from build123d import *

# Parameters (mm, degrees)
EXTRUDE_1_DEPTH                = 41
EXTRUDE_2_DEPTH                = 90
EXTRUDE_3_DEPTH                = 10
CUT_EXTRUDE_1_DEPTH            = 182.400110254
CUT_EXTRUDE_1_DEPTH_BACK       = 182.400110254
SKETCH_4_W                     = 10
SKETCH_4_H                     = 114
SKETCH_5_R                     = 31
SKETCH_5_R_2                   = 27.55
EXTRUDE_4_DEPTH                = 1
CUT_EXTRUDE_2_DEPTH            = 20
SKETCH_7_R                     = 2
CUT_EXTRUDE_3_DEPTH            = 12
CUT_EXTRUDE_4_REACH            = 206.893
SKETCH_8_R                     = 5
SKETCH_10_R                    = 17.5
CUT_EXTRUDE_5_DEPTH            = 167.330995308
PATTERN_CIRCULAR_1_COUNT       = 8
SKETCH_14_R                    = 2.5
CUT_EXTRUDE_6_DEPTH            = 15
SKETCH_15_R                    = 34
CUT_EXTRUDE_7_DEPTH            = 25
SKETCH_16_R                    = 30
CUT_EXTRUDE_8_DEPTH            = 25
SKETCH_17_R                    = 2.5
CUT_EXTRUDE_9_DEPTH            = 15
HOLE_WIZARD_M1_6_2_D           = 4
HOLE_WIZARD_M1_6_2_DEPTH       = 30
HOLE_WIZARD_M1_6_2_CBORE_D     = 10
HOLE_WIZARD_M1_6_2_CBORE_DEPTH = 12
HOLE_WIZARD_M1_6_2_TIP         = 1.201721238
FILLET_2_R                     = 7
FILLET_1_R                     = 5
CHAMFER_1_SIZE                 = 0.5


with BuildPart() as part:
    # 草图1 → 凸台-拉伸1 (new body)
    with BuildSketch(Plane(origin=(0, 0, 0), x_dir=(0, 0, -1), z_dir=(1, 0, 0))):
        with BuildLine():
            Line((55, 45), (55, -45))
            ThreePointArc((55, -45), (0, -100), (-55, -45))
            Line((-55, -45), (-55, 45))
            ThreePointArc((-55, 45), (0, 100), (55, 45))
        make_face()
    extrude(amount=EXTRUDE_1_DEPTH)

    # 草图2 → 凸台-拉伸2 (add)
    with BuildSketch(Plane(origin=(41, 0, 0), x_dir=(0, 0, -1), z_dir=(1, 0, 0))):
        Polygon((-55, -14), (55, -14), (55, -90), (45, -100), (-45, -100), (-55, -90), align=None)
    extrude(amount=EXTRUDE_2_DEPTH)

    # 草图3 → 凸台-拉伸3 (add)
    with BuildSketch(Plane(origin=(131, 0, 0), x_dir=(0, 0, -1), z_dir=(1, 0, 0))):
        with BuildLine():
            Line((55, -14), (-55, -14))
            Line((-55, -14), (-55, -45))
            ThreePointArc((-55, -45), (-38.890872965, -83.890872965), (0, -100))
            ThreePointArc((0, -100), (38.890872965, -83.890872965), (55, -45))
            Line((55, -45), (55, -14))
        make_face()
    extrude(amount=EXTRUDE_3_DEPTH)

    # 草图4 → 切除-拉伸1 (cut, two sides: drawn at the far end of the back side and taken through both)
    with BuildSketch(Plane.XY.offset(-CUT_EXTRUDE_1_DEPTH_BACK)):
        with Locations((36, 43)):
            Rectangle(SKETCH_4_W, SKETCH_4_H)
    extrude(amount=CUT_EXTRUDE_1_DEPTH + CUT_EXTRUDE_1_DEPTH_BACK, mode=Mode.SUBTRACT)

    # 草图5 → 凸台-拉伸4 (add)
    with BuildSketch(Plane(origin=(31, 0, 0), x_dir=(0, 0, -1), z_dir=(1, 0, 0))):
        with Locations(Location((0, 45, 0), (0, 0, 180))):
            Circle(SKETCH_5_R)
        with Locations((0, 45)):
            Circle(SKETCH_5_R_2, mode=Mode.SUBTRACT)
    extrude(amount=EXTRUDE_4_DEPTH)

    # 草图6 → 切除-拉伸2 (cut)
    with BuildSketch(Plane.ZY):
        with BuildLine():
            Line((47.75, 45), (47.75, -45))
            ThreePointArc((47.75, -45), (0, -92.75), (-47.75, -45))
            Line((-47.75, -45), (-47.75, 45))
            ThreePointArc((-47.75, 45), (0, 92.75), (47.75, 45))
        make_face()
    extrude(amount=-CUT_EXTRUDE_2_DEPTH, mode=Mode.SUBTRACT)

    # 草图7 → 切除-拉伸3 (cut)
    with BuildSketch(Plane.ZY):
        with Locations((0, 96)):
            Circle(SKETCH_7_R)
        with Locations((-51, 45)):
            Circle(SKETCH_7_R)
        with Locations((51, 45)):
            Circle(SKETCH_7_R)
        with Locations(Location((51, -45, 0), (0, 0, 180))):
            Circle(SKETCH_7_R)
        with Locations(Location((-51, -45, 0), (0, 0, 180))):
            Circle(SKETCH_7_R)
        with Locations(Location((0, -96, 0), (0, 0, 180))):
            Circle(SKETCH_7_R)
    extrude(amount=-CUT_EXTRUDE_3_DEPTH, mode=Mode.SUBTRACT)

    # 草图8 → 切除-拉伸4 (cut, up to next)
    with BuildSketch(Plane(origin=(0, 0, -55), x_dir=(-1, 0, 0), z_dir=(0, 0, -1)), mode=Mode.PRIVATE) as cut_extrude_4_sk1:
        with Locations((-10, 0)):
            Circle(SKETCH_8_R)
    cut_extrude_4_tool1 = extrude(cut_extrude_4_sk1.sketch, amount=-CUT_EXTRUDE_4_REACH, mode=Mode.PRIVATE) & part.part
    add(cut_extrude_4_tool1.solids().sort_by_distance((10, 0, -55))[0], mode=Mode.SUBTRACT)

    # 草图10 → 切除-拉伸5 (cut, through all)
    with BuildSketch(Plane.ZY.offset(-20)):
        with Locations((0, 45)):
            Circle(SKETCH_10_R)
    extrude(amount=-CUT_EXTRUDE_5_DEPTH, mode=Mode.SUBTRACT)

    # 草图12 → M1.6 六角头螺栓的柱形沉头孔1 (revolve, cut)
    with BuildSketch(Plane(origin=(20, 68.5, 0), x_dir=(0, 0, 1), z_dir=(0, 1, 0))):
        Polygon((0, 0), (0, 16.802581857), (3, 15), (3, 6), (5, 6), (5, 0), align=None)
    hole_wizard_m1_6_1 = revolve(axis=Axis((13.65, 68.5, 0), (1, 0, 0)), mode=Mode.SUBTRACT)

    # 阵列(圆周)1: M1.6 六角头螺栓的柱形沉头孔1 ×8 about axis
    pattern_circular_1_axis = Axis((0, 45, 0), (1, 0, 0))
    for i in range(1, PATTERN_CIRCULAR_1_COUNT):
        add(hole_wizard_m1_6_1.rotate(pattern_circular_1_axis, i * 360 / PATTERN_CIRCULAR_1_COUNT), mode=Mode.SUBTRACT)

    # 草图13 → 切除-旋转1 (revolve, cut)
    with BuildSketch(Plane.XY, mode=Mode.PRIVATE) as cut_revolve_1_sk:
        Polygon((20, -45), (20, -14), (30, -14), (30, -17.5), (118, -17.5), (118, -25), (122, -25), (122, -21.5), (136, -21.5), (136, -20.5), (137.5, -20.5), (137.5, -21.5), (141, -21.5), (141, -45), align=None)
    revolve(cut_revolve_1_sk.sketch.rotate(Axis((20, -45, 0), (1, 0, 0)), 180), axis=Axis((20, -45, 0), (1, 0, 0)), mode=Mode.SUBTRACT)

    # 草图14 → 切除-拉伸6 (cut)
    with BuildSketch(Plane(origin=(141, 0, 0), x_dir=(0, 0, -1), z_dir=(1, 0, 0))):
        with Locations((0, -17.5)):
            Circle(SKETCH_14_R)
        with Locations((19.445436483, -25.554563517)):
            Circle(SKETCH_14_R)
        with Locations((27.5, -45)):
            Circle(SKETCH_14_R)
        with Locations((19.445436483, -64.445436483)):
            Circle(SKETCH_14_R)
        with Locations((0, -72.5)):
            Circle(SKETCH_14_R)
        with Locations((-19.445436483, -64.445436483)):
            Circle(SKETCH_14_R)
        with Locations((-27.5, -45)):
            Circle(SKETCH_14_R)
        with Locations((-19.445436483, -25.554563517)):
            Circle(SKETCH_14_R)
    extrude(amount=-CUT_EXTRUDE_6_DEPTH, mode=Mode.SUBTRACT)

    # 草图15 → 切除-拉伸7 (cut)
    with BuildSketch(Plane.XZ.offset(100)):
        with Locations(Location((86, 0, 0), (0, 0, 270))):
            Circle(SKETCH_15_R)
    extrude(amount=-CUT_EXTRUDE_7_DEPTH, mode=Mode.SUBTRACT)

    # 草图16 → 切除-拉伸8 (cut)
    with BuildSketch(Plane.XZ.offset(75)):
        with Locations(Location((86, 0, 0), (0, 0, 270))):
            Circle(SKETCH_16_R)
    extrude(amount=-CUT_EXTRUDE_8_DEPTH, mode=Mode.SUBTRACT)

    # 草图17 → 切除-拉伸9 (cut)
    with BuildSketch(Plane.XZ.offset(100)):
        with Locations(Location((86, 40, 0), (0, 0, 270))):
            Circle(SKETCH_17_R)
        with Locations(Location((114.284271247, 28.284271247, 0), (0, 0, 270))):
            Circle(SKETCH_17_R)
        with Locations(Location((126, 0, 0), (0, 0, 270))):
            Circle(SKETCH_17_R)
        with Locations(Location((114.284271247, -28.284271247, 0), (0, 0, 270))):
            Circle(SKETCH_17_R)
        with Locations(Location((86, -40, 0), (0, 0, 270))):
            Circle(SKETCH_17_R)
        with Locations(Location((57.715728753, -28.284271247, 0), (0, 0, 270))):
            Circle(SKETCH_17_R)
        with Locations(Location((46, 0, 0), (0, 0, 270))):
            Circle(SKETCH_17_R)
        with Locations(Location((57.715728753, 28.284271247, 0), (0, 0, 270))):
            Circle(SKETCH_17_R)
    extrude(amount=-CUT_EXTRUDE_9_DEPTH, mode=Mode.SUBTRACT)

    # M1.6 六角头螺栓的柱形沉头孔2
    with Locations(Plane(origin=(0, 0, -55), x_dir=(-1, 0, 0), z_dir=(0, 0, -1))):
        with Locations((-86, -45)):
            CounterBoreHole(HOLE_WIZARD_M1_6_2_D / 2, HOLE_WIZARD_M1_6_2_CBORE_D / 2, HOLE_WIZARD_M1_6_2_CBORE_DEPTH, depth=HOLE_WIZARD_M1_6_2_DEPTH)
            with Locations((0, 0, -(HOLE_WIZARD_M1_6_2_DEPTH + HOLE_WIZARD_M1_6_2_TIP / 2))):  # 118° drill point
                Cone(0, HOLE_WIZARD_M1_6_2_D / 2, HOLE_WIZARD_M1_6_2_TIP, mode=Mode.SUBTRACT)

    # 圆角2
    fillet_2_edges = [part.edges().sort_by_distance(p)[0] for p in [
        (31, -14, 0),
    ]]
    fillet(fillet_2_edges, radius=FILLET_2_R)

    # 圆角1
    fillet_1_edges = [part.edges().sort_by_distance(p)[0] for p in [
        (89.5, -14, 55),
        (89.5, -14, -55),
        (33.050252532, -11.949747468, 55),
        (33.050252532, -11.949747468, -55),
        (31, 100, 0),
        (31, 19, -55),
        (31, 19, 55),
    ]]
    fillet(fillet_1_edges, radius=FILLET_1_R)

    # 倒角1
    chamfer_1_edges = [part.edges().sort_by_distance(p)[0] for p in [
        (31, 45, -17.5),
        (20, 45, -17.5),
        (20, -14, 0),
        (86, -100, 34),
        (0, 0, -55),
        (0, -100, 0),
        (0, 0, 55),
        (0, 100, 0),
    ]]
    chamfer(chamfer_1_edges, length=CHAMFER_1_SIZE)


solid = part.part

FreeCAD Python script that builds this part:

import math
import FreeCAD as App
import Part
import Sketcher
from FreeCAD import Vector
Q = App.Units.Quantity


def edges_at(feature, points):
    """Names of the edges that pass closest to the given points."""
    edges = feature.Shape.Edges
    near = lambda p: min(range(len(edges)), key=lambda i: edges[i].distToShape(Part.Vertex(*p))[0])
    return sorted({f"Edge{near(p) + 1}" for p in points})


def add_polygon(sketch, points):
    """Adds a closed chain of lines whose ends are joined by coincident constraints."""
    first, n = sketch.GeometryCount, len(points)
    for a, b in zip(points, points[1:] + points[:1]):
        sketch.addGeometry(Part.LineSegment(App.Vector(*a, 0), App.Vector(*b, 0)), False)
    for i in range(n):
        sketch.addConstraint(Sketcher.Constraint("Coincident", first + i, 2, first + (i + 1) % n, 1))

doc = App.newDocument("Part")
body = doc.addObject("PartDesign::Body", "Body")

# Sketch on YZ plane
sketch1 = body.newObject("Sketcher::SketchObject", "Sketch")
sketch1.AttachmentSupport = (doc.getObject("YZ_Plane"), [""])
sketch1.MapMode = "FlatFace"
sketch1.addGeometry(Part.LineSegment(Vector(-45, -55, 0), Vector(45, -55, 0)), False)
sketch1.addGeometry(Part.ArcOfCircle(Part.Circle(Vector(45, 0, 0), Vector(0, 0, 1), 55), math.radians(-90), math.radians(90)), False)
sketch1.addGeometry(Part.LineSegment(Vector(45, 55, 0), Vector(-45, 55, 0)), False)
sketch1.addGeometry(Part.ArcOfCircle(Part.Circle(Vector(-45, 0, 0), Vector(0, 0, 1), 55), math.radians(90), math.radians(270)), False)
sketch1.addConstraint(Sketcher.Constraint("Tangent", 0, 2, 1, 1))
sketch1.addConstraint(Sketcher.Constraint("Tangent", 1, 2, 2, 1))
sketch1.addConstraint(Sketcher.Constraint("Tangent", 2, 2, 3, 1))
sketch1.addConstraint(Sketcher.Constraint("Tangent", 3, 2, 0, 1))
sketch1.addConstraint(Sketcher.Constraint("Horizontal", 0))
sketch1.addConstraint(Sketcher.Constraint("Horizontal", 2))
sketch1.addConstraint(Sketcher.Constraint("Symmetric", 1, 3, 3, 3, -1, 1))
sketch1.addConstraint(Sketcher.Constraint("Radius", 1, Q("55 mm")))
sketch1.addConstraint(Sketcher.Constraint("DistanceX", 0, 1, 0, 2, Q("90 mm")))
pad1 = body.newObject("PartDesign::Pad", "Pad")
pad1.Profile = sketch1
pad1.Length = 41

# Sketch on YZ plane
sketch2 = body.newObject("Sketcher::SketchObject", "Sketch001")
sketch2.AttachmentSupport = (doc.getObject("YZ_Plane"), [""])
sketch2.MapMode = "FlatFace"
sketch2.AttachmentOffset = App.Placement(Vector(0, 0, 41), App.Rotation())
add_polygon(sketch2, [(-14, -55), (-14, 55), (-90, 55), (-100, 45), (-100, -45), (-90, -55)])  # lines 0-5
sketch2.addConstraint(Sketcher.Constraint("Vertical", 0))
sketch2.addConstraint(Sketcher.Constraint("Horizontal", 1))
sketch2.addConstraint(Sketcher.Constraint("Vertical", 3))
sketch2.addConstraint(Sketcher.Constraint("Horizontal", 5))
sketch2.addConstraint(Sketcher.Constraint("Symmetric", 1, 2, 4, 2, -1))
sketch2.addConstraint(Sketcher.Constraint("Perpendicular", 2, 4))
sketch2.addConstraint(Sketcher.Constraint("Equal", 2, 4))
sketch2.addConstraint(Sketcher.Constraint("DistanceX", 1, 2, 1, 1, Q("76 mm")))
sketch2.addConstraint(Sketcher.Constraint("DistanceY", 0, 1, 0, 2, Q("110 mm")))
sketch2.addConstraint(Sketcher.Constraint("DistanceY", 3, 2, 3, 1, Q("90 mm")))
sketch2.addConstraint(Sketcher.Constraint("DistanceX", 0, 2, -1, 1, Q("14 mm")))
pad2 = body.newObject("PartDesign::Pad", "Pad001")
pad2.Profile = sketch2
pad2.Length = 90

# Sketch on YZ plane
sketch3 = body.newObject("Sketcher::SketchObject", "Sketch002")
sketch3.AttachmentSupport = (doc.getObject("YZ_Plane"), [""])
sketch3.MapMode = "FlatFace"
sketch3.AttachmentOffset = App.Placement(Vector(0, 0, 131), App.Rotation())
sketch3.addGeometry(Part.LineSegment(Vector(-14, -55, 0), Vector(-14, 55, 0)), False)
sketch3.addGeometry(Part.LineSegment(Vector(-14, 55, 0), Vector(-45, 55, 0)), False)
sketch3.addGeometry(Part.ArcOfCircle(Part.Circle(Vector(-45, 0, 0), Vector(0, 0, 1), 55), math.radians(90), math.radians(180)), False)
sketch3.addGeometry(Part.ArcOfCircle(Part.Circle(Vector(-45, 0, 0), Vector(0, 0, 1), 55), math.radians(-180), math.radians(-90)), False)
sketch3.addGeometry(Part.LineSegment(Vector(-45, -55, 0), Vector(-14, -55, 0)), False)
sketch3.addConstraint(Sketcher.Constraint("Coincident", 0, 2, 1, 1))
sketch3.addConstraint(Sketcher.Constraint("Tangent", 1, 2, 2, 1))
sketch3.addConstraint(Sketcher.Constraint("Tangent", 2, 2, 3, 1))
sketch3.addConstraint(Sketcher.Constraint("Tangent", 3, 2, 4, 1))
sketch3.addConstraint(Sketcher.Constraint("Coincident", 4, 2, 0, 1))
sketch3.addConstraint(Sketcher.Constraint("Vertical", 0))
sketch3.addConstraint(Sketcher.Constraint("Horizontal", 1))
sketch3.addConstraint(Sketcher.Constraint("Horizontal", 4))
sketch3.addConstraint(Sketcher.Constraint("Equal", 2, 3))
sketch3.addConstraint(Sketcher.Constraint("PointOnObject", 2, 3, -1))
sketch3.addConstraint(Sketcher.Constraint("PointOnObject", 2, 2, -1))
sketch3.addConstraint(Sketcher.Constraint("Radius", 2, Q("55 mm")))
sketch3.addConstraint(Sketcher.Constraint("DistanceX", 1, 2, 1, 1, Q("31 mm")))
sketch3.addConstraint(Sketcher.Constraint("DistanceX", 2, 3, -1, 1, Q("45 mm")))
pad3 = body.newObject("PartDesign::Pad", "Pad002")
pad3.Profile = sketch3
pad3.Length = 10

# Sketch on XY plane
sketch4 = body.newObject("Sketcher::SketchObject", "Sketch003")
sketch4.AttachmentSupport = (doc.getObject("XY_Plane"), [""])
sketch4.MapMode = "FlatFace"
add_polygon(sketch4, [(31, 100), (31, -14), (41, -14), (41, 100)])  # lines 0-3
sketch4.addConstraint(Sketcher.Constraint("Vertical", 0))
sketch4.addConstraint(Sketcher.Constraint("Horizontal", 1))
sketch4.addConstraint(Sketcher.Constraint("Vertical", 2))
sketch4.addConstraint(Sketcher.Constraint("Horizontal", 3))
sketch4.addConstraint(Sketcher.Constraint("DistanceX", 1, 1, 1, 2, Q("10 mm")))
sketch4.addConstraint(Sketcher.Constraint("DistanceY", 0, 2, 0, 1, Q("114 mm")))
sketch4.addConstraint(Sketcher.Constraint("DistanceX", -1, 1, 0, 2, Q("31 mm")))
sketch4.addConstraint(Sketcher.Constraint("DistanceY", 0, 2, -1, 1, Q("14 mm")))
pocket1 = body.newObject("PartDesign::Pocket", "Pocket")
pocket1.Profile = sketch4
pocket1.Type = "ThroughAll"
pocket1.Midplane = True

# Sketch on YZ plane
sketch5 = body.newObject("Sketcher::SketchObject", "Sketch004")
sketch5.AttachmentSupport = (doc.getObject("YZ_Plane"), [""])
sketch5.MapMode = "FlatFace"
sketch5.AttachmentOffset = App.Placement(Vector(0, 0, 31), App.Rotation())
sketch5.addGeometry(Part.Circle(Vector(45, 0, 0), Vector(0, 0, 1), 31), False)
sketch5.addGeometry(Part.Circle(Vector(45, 0, 0), Vector(0, 0, 1), 28), False)
sketch5.addConstraint(Sketcher.Constraint("Coincident", 1, 3, 0, 3))
sketch5.addConstraint(Sketcher.Constraint("PointOnObject", 0, 3, -1))
sketch5.addConstraint(Sketcher.Constraint("Diameter", 0, Q("62 mm")))
sketch5.addConstraint(Sketcher.Constraint("Diameter", 1, Q("55.1 mm")))
sketch5.addConstraint(Sketcher.Constraint("DistanceX", -1, 1, 0, 3, Q("45 mm")))
pad4 = body.newObject("PartDesign::Pad", "Pad003")
pad4.Profile = sketch5
pad4.Length = 1

# Sketch on YZ plane
sketch6 = body.newObject("Sketcher::SketchObject", "Sketch005")
sketch6.AttachmentSupport = (doc.getObject("YZ_Plane"), [""])
sketch6.MapMode = "FlatFace"
sketch6.addGeometry(Part.LineSegment(Vector(-45, 48, 0), Vector(45, 48, 0)), False)
sketch6.addGeometry(Part.ArcOfCircle(Part.Circle(Vector(45, 0, 0), Vector(0, 0, 1), 48), math.radians(-90), math.radians(90)), False)
sketch6.addGeometry(Part.LineSegment(Vector(45, -48, 0), Vector(-45, -48, 0)), False)
sketch6.addGeometry(Part.ArcOfCircle(Part.Circle(Vector(-45, 0, 0), Vector(0, 0, 1), 48), math.radians(90), math.radians(270)), False)
sketch6.addConstraint(Sketcher.Constraint("Tangent", 0, 2, 1, 2))
sketch6.addConstraint(Sketcher.Constraint("Tangent", 1, 1, 2, 1))
sketch6.addConstraint(Sketcher.Constraint("Tangent", 2, 2, 3, 2))
sketch6.addConstraint(Sketcher.Constraint("Tangent", 3, 1, 0, 1))
sketch6.addConstraint(Sketcher.Constraint("Horizontal", 0))
sketch6.addConstraint(Sketcher.Constraint("Horizontal", 2))
sketch6.addConstraint(Sketcher.Constraint("Symmetric", 1, 3, 3, 3, -1, 1))
sketch6.addConstraint(Sketcher.Constraint("DistanceX", 0, 1, 0, 2, Q("90 mm")))
sketch6.addConstraint(Sketcher.Constraint("Radius", 1, Q("47.75 mm")))
pocket2 = body.newObject("PartDesign::Pocket", "Pocket001")
pocket2.Profile = sketch6
pocket2.Length = 20
pocket2.Reversed = True

# Sketch on YZ plane
sketch7 = body.newObject("Sketcher::SketchObject", "Sketch006")
sketch7.AttachmentSupport = (doc.getObject("YZ_Plane"), [""])
sketch7.MapMode = "FlatFace"
sketch7.addGeometry(Part.Circle(Vector(96, 0, 0), Vector(0, 0, 1), 2), False)
sketch7.addGeometry(Part.Circle(Vector(45, -51, 0), Vector(0, 0, 1), 2), False)
sketch7.addGeometry(Part.Circle(Vector(45, 51, 0), Vector(0, 0, 1), 2), False)
sketch7.addGeometry(Part.Circle(Vector(-45, 51, 0), Vector(0, 0, 1), 2), False)
sketch7.addGeometry(Part.Circle(Vector(-45, -51, 0), Vector(0, 0, 1), 2), False)
sketch7.addGeometry(Part.Circle(Vector(-96, 0, 0), Vector(0, 0, 1), 2), False)
sketch7.addConstraint(Sketcher.Constraint("Equal", 0, 1))
sketch7.addConstraint(Sketcher.Constraint("Equal", 1, 2))
sketch7.addConstraint(Sketcher.Constraint("Equal", 2, 3))
sketch7.addConstraint(Sketcher.Constraint("Equal", 3, 4))
sketch7.addConstraint(Sketcher.Constraint("Equal", 4, 5))
sketch7.addConstraint(Sketcher.Constraint("Symmetric", 1, 3, 3, 3, -1, 1))
sketch7.addConstraint(Sketcher.Constraint("Symmetric", 2, 3, 4, 3, -1, 1))
sketch7.addConstraint(Sketcher.Constraint("Symmetric", 0, 3, 5, 3, -1, 1))
sketch7.addConstraint(Sketcher.Constraint("Symmetric", 2, 3, 3, 3, -2))
sketch7.addConstraint(Sketcher.Constraint("PointOnObject", 0, 3, -1))
sketch7.addConstraint(Sketcher.Constraint("Diameter", 0, Q("4 mm")))
sketch7.addConstraint(Sketcher.Constraint("DistanceX", -1, 1, 0, 3, Q("96 mm")))
sketch7.addConstraint(Sketcher.Constraint("DistanceX", -1, 1, 1, 3, Q("45 mm")))
sketch7.addConstraint(Sketcher.Constraint("DistanceY", 1, 3, -1, 1, Q("51 mm")))
pocket3 = body.newObject("PartDesign::Pocket", "Pocket002")
pocket3.Profile = sketch7
pocket3.Length = 12
pocket3.Reversed = True

# Sketch on XY plane
sketch8 = body.newObject("Sketcher::SketchObject", "Sketch007")
sketch8.AttachmentSupport = (doc.getObject("XY_Plane"), [""])
sketch8.MapMode = "FlatFace"
sketch8.AttachmentOffset = App.Placement(Vector(0, 0, -55), App.Rotation())
sketch8.addGeometry(Part.Circle(Vector(10, 0, 0), Vector(0, 0, 1), 5), False)
sketch8.addConstraint(Sketcher.Constraint("PointOnObject", 0, 3, -1))
sketch8.addConstraint(Sketcher.Constraint("Diameter", 0, Q("10 mm")))
sketch8.addConstraint(Sketcher.Constraint("DistanceX", -1, 1, 0, 3, Q("10 mm")))
pocket4 = body.newObject("PartDesign::Pocket", "Pocket003")
pocket4.Profile = sketch8
pocket4.Type = "UpToFirst"
pocket4.Reversed = True

# Sketch on YZ plane
sketch9 = body.newObject("Sketcher::SketchObject", "Sketch008")
sketch9.AttachmentSupport = (doc.getObject("YZ_Plane"), [""])
sketch9.MapMode = "FlatFace"
sketch9.AttachmentOffset = App.Placement(Vector(0, 0, 20), App.Rotation())
sketch9.addGeometry(Part.Circle(Vector(45, 0, 0), Vector(0, 0, 1), 18), False)
sketch9.addConstraint(Sketcher.Constraint("PointOnObject", 0, 3, -1))
sketch9.addConstraint(Sketcher.Constraint("Diameter", 0, Q("35 mm")))
sketch9.addConstraint(Sketcher.Constraint("DistanceX", -1, 1, 0, 3, Q("45 mm")))
pocket5 = body.newObject("PartDesign::Pocket", "Pocket004")
pocket5.Profile = sketch9
pocket5.Type = "ThroughAll"
pocket5.Reversed = True

# Sketch on XZ plane
sketch10 = body.newObject("Sketcher::SketchObject", "Sketch009")
sketch10.AttachmentSupport = (doc.getObject("XZ_Plane"), [""])
sketch10.MapMode = "FlatFace"
sketch10.AttachmentOffset = App.Placement(Vector(0, 0, -68.5), App.Rotation())
add_polygon(sketch10, [(36.8, 0), (20, 0), (20, 5), (26, 5), (26, 3), (35, 3)])  # lines 0-5
sketch10.addConstraint(Sketcher.Constraint("Horizontal", 0))
sketch10.addConstraint(Sketcher.Constraint("Vertical", 1))
sketch10.addConstraint(Sketcher.Constraint("Horizontal", 2))
sketch10.addConstraint(Sketcher.Constraint("Vertical", 3))
sketch10.addConstraint(Sketcher.Constraint("Horizontal", 4))
sketch10.addConstraint(Sketcher.Constraint("PointOnObject", 0, 2, -1))
sketch10.addConstraint(Sketcher.Constraint("DistanceX", 2, 1, 2, 2, Q("6 mm")))
sketch10.addConstraint(Sketcher.Constraint("DistanceX", 4, 1, 4, 2, Q("9 mm")))
sketch10.addConstraint(Sketcher.Constraint("DistanceY", 1, 1, 1, 2, Q("5 mm")))
sketch10.addConstraint(Sketcher.Constraint("DistanceY", 3, 2, 3, 1, Q("2 mm")))
sketch10.addConstraint(Sketcher.Constraint("Angle", 5, Q("-59 deg")))
sketch10.addConstraint(Sketcher.Constraint("DistanceX", -1, 1, 0, 2, Q("20 mm")))
groove = body.newObject("PartDesign::Groove", "Groove")
groove.Profile = sketch10
groove.ReferenceAxis = (sketch10, ["H_Axis"])
groove.Angle = 360
doc.recompute()

datumline = body.newObject("PartDesign::Line", "DatumLine")
datumline.Placement = App.Placement(Vector(0, 45, 0), App.Rotation(Vector(0, 0, 1), Vector(1, 0, 0)))
polarpattern = body.newObject("PartDesign::PolarPattern", "PolarPattern")
polarpattern.Originals = [groove]
polarpattern.Axis = (datumline, [""])
polarpattern.Angle = 360
polarpattern.Occurrences = 8
body.Tip = polarpattern

# Sketch on XY plane
sketch11 = body.newObject("Sketcher::SketchObject", "Sketch010")
sketch11.AttachmentSupport = (doc.getObject("XY_Plane"), [""])
sketch11.MapMode = "FlatFace"
add_polygon(sketch11, [(20, -14), (20, -45), (141, -45), (141, -21.5), (137.5, -21.5), (137.5, -20.5), (136, -20.5), (136, -21.5), (122, -21.5), (122, -25), (118, -25), (118, -17.5), (30, -17.5), (30, -14)])  # lines 0-13
sketch11.addGeometry(Part.LineSegment(Vector(20, -45, 0), Vector(141, -45, 0)), True)  # axis
sketch11.addConstraint(Sketcher.Constraint("Vertical", 0))
sketch11.addConstraint(Sketcher.Constraint("Horizontal", 1))
sketch11.addConstraint(Sketcher.Constraint("Vertical", 2))
sketch11.addConstraint(Sketcher.Constraint("Horizontal", 3))
sketch11.addConstraint(Sketcher.Constraint("Vertical", 4))
sketch11.addConstraint(Sketcher.Constraint("Horizontal", 5))
sketch11.addConstraint(Sketcher.Constraint("Vertical", 6))
sketch11.addConstraint(Sketcher.Constraint("Horizontal", 7))
sketch11.addConstraint(Sketcher.Constraint("Vertical", 8))
sketch11.addConstraint(Sketcher.Constraint("Horizontal", 9))
sketch11.addConstraint(Sketcher.Constraint("Vertical", 10))
sketch11.addConstraint(Sketcher.Constraint("Horizontal", 11))
sketch11.addConstraint(Sketcher.Constraint("Vertical", 12))
sketch11.addConstraint(Sketcher.Constraint("Horizontal", 13))
sketch11.addConstraint(Sketcher.Constraint("Horizontal", 14))
sketch11.addConstraint(Sketcher.Constraint("Coincident", 14, 1, 0, 2))
sketch11.addConstraint(Sketcher.Constraint("Horizontal", 3, 2, 6, 2))
sketch11.addConstraint(Sketcher.Constraint("Vertical", 2, 2, 14, 2))
sketch11.addConstraint(Sketcher.Constraint("Equal", 3, 8))
sketch11.addConstraint(Sketcher.Constraint("Equal", 8, 12))
sketch11.addConstraint(Sketcher.Constraint("DistanceX", 1, 1, 1, 2, Q("121 mm")))
sketch11.addConstraint(Sketcher.Constraint("DistanceX", 7, 2, 7, 1, Q("14 mm")))
sketch11.addConstraint(Sketcher.Constraint("DistanceX", 9, 2, 9, 1, Q("4 mm")))
sketch11.addConstraint(Sketcher.Constraint("DistanceX", 11, 2, 11, 1, Q("88 mm")))
sketch11.addConstraint(Sketcher.Constraint("DistanceX", 13, 2, 13, 1, Q("10 mm")))
sketch11.addConstraint(Sketcher.Constraint("DistanceY", 0, 2, 0, 1, Q("31 mm")))
sketch11.addConstraint(Sketcher.Constraint("DistanceY", 4, 1, 4, 2, Q("1 mm")))
sketch11.addConstraint(Sketcher.Constraint("DistanceX", 3, 2, 3, 1, Q("3.5 mm")))
sketch11.addConstraint(Sketcher.Constraint("DistanceY", 2, 1, 2, 2, Q("23.5 mm")))
sketch11.addConstraint(Sketcher.Constraint("DistanceX", -1, 1, 0, 2, Q("20 mm")))
sketch11.addConstraint(Sketcher.Constraint("DistanceY", 0, 2, -1, 1, Q("45 mm")))
groove2 = body.newObject("PartDesign::Groove", "Groove001")
groove2.Profile = sketch11
groove2.ReferenceAxis = (sketch11, ["Axis0"])
groove2.Angle = 360

# Sketch on YZ plane
sketch12 = body.newObject("Sketcher::SketchObject", "Sketch011")
sketch12.AttachmentSupport = (doc.getObject("YZ_Plane"), [""])
sketch12.MapMode = "FlatFace"
sketch12.AttachmentOffset = App.Placement(Vector(0, 0, 141), App.Rotation())
sketch12.addGeometry(Part.Circle(Vector(-17.5, 0, 0), Vector(0, 0, 1), 2.5), False)
sketch12.addGeometry(Part.Circle(Vector(-25.6, -19.4, 0), Vector(0, 0, 1), 2.5), False)
sketch12.addGeometry(Part.Circle(Vector(-45, -27.5, 0), Vector(0, 0, 1), 2.5), False)
sketch12.addGeometry(Part.Circle(Vector(-64.4, -19.4, 0), Vector(0, 0, 1), 2.5), False)
sketch12.addGeometry(Part.Circle(Vector(-72.5, 0, 0), Vector(0, 0, 1), 2.5), False)
sketch12.addGeometry(Part.Circle(Vector(-64.4, 19.4, 0), Vector(0, 0, 1), 2.5), False)
sketch12.addGeometry(Part.Circle(Vector(-45, 27.5, 0), Vector(0, 0, 1), 2.5), False)
sketch12.addGeometry(Part.Circle(Vector(-25.6, 19.4, 0), Vector(0, 0, 1), 2.5), False)
sketch12.addConstraint(Sketcher.Constraint("Equal", 0, 1))
sketch12.addConstraint(Sketcher.Constraint("Equal", 1, 2))
sketch12.addConstraint(Sketcher.Constraint("Equal", 2, 3))
sketch12.addConstraint(Sketcher.Constraint("Equal", 3, 4))
sketch12.addConstraint(Sketcher.Constraint("Equal", 4, 5))
sketch12.addConstraint(Sketcher.Constraint("Equal", 5, 6))
sketch12.addConstraint(Sketcher.Constraint("Equal", 6, 7))
sketch12.addConstraint(Sketcher.Constraint("Symmetric", 3, 3, 5, 3, -1))
sketch12.addConstraint(Sketcher.Constraint("Symmetric", 2, 3, 6, 3, -1))
sketch12.addConstraint(Sketcher.Constraint("Symmetric", 1, 3, 7, 3, -1))
sketch12.addConstraint(Sketcher.Constraint("PointOnObject", 0, 3, -1))
sketch12.addConstraint(Sketcher.Constraint("PointOnObject", 4, 3, -1))
sketch12.addConstraint(Sketcher.Constraint("Horizontal", 1, 3, 3, 3))
sketch12.addConstraint(Sketcher.Constraint("Diameter", 0, Q("5 mm")))
sketch12.addConstraint(Sketcher.Constraint("DistanceX", 2, 3, -1, 1, Q("45 mm")))
sketch12.addConstraint(Sketcher.Constraint("DistanceX", 4, 3, 0, 3, Q("55 mm")))
sketch12.addConstraint(Sketcher.Constraint("DistanceX", 0, 3, -1, 1, Q("17.5 mm")))
sketch12.addConstraint(Sketcher.Constraint("DistanceY", 2, 3, -1, 1, Q("27.5 mm")))
sketch12.addConstraint(Sketcher.Constraint("DistanceX", 1, 3, -1, 1, Q("25.554564 mm")))
sketch12.addConstraint(Sketcher.Constraint("DistanceY", 1, 3, -1, 1, Q("19.445436 mm")))
sketch12.addConstraint(Sketcher.Constraint("DistanceX", 3, 3, -1, 1, Q("64.445436 mm")))
pocket6 = body.newObject("PartDesign::Pocket", "Pocket005")
pocket6.Profile = sketch12
pocket6.Length = 15

# Sketch on XZ plane
sketch13 = body.newObject("Sketcher::SketchObject", "Sketch012")
sketch13.AttachmentSupport = (doc.getObject("XZ_Plane"), [""])
sketch13.MapMode = "FlatFace"
sketch13.AttachmentOffset = App.Placement(Vector(0, 0, 100), App.Rotation())
sketch13.addGeometry(Part.Circle(Vector(86, 0, 0), Vector(0, 0, 1), 34), False)
sketch13.addConstraint(Sketcher.Constraint("PointOnObject", 0, 3, -1))
sketch13.addConstraint(Sketcher.Constraint("Diameter", 0, Q("68 mm")))
sketch13.addConstraint(Sketcher.Constraint("DistanceX", -1, 1, 0, 3, Q("86 mm")))
pocket7 = body.newObject("PartDesign::Pocket", "Pocket006")
pocket7.Profile = sketch13
pocket7.Length = 25

# Sketch on XZ plane
sketch14 = body.newObject("Sketcher::SketchObject", "Sketch013")
sketch14.AttachmentSupport = (doc.getObject("XZ_Plane"), [""])
sketch14.MapMode = "FlatFace"
sketch14.AttachmentOffset = App.Placement(Vector(0, 0, 75), App.Rotation())
sketch14.addGeometry(Part.Circle(Vector(86, 0, 0), Vector(0, 0, 1), 30), False)
sketch14.addConstraint(Sketcher.Constraint("PointOnObject", 0, 3, -1))
sketch14.addConstraint(Sketcher.Constraint("Diameter", 0, Q("60 mm")))
sketch14.addConstraint(Sketcher.Constraint("DistanceX", -1, 1, 0, 3, Q("86 mm")))
pocket8 = body.newObject("PartDesign::Pocket", "Pocket007")
pocket8.Profile = sketch14
pocket8.Length = 25

# Sketch on XZ plane
sketch15 = body.newObject("Sketcher::SketchObject", "Sketch014")
sketch15.AttachmentSupport = (doc.getObject("XZ_Plane"), [""])
sketch15.MapMode = "FlatFace"
sketch15.AttachmentOffset = App.Placement(Vector(0, 0, 100), App.Rotation())
sketch15.addGeometry(Part.Circle(Vector(86, 40, 0), Vector(0, 0, 1), 2.5), False)
sketch15.addGeometry(Part.Circle(Vector(114.3, 28.3, 0), Vector(0, 0, 1), 2.5), False)
sketch15.addGeometry(Part.Circle(Vector(126, 0, 0), Vector(0, 0, 1), 2.5), False)
sketch15.addGeometry(Part.Circle(Vector(114.3, -28.3, 0), Vector(0, 0, 1), 2.5), False)
sketch15.addGeometry(Part.Circle(Vector(86, -40, 0), Vector(0, 0, 1), 2.5), False)
sketch15.addGeometry(Part.Circle(Vector(57.7, -28.3, 0), Vector(0, 0, 1), 2.5), False)
sketch15.addGeometry(Part.Circle(Vector(46, 0, 0), Vector(0, 0, 1), 2.5), False)
sketch15.addGeometry(Part.Circle(Vector(57.7, 28.3, 0), Vector(0, 0, 1), 2.5), False)
sketch15.addConstraint(Sketcher.Constraint("Equal", 0, 1))
sketch15.addConstraint(Sketcher.Constraint("Equal", 1, 2))
sketch15.addConstraint(Sketcher.Constraint("Equal", 2, 3))
sketch15.addConstraint(Sketcher.Constraint("Equal", 3, 4))
sketch15.addConstraint(Sketcher.Constraint("Equal", 4, 5))
sketch15.addConstraint(Sketcher.Constraint("Equal", 5, 6))
sketch15.addConstraint(Sketcher.Constraint("Equal", 6, 7))
sketch15.addConstraint(Sketcher.Constraint("Symmetric", 1, 3, 3, 3, -1))
sketch15.addConstraint(Sketcher.Constraint("Symmetric", 0, 3, 4, 3, -1))
sketch15.addConstraint(Sketcher.Constraint("Symmetric", 5, 3, 7, 3, -1))
sketch15.addConstraint(Sketcher.Constraint("PointOnObject", 2, 3, -1))
sketch15.addConstraint(Sketcher.Constraint("PointOnObject", 6, 3, -1))
sketch15.addConstraint(Sketcher.Constraint("Horizontal", 3, 3, 5, 3))
sketch15.addConstraint(Sketcher.Constraint("Diameter", 0, Q("5 mm")))
sketch15.addConstraint(Sketcher.Constraint("DistanceX", -1, 1, 0, 3, Q("86 mm")))
sketch15.addConstraint(Sketcher.Constraint("DistanceY", -1, 1, 0, 3, Q("40 mm")))
sketch15.addConstraint(Sketcher.Constraint("DistanceX", -1, 1, 2, 3, Q("126 mm")))
sketch15.addConstraint(Sketcher.Constraint("DistanceX", -1, 1, 6, 3, Q("46 mm")))
sketch15.addConstraint(Sketcher.Constraint("DistanceX", -1, 1, 1, 3, Q("114.284271 mm")))
sketch15.addConstraint(Sketcher.Constraint("DistanceY", -1, 1, 1, 3, Q("28.284271 mm")))
sketch15.addConstraint(Sketcher.Constraint("DistanceX", -1, 1, 5, 3, Q("57.715729 mm")))
pocket9 = body.newObject("PartDesign::Pocket", "Pocket008")
pocket9.Profile = sketch15
pocket9.Length = 15

# Sketch on XY plane
sketch16 = body.newObject("Sketcher::SketchObject", "Sketch015")
sketch16.AttachmentSupport = (doc.getObject("XY_Plane"), [""])
sketch16.MapMode = "FlatFace"
sketch16.AttachmentOffset = App.Placement(Vector(0, 0, -55), App.Rotation())
sketch16.addGeometry(Part.Circle(Vector(86, -45, 0), Vector(0, 0, 1), 2), False)
sketch16.addConstraint(Sketcher.Constraint("Diameter", 0, Q("4 mm")))
sketch16.addConstraint(Sketcher.Constraint("DistanceX", -1, 1, 0, 3, Q("86 mm")))
sketch16.addConstraint(Sketcher.Constraint("DistanceY", 0, 3, -1, 1, Q("45 mm")))
doc.recompute()
hole = body.newObject("PartDesign::Hole", "Hole")
hole.Profile = sketch16
hole.ThreadType = "None"
hole.Diameter = 4
hole.DepthType = "Dimension"
hole.Depth = 30
hole.DrillPoint = "Angled"
hole.DrillPointAngle = 118
hole.HoleCutType = "Counterbore"
hole.HoleCutDiameter = 10
hole.HoleCutDepth = 12
hole.Reversed = True
doc.recompute()

fillet = body.newObject("PartDesign::Fillet", "Fillet")
fillet.Base = (hole, edges_at(hole, [(31, -14, 0)]))
fillet.Radius = 7
doc.recompute()

fillet2 = body.newObject("PartDesign::Fillet", "Fillet001")
fillet2.Base = (fillet, edges_at(fillet, [
    (89.5, -14, 55),
    (89.5, -14, -55),
    (33.05, -11.95, 55),
    (33.05, -11.95, -55),
    (31, 100, 0),
    (31, 19, -55),
    (31, 19, 55),
]))
fillet2.Radius = 5
doc.recompute()

chamfer = body.newObject("PartDesign::Chamfer", "Chamfer")
chamfer.Base = (fillet2, edges_at(fillet2, [
    (31, 45, -17.5),
    (20, 45, -17.5),
    (20, -14, 0),
    (86, -100, 34),
    (0, 0, -55),
    (0, -100, 0),
    (0, 0, 55),
    (0, 100, 0),
]))
chamfer.Size = 0.5

doc.recompute()
